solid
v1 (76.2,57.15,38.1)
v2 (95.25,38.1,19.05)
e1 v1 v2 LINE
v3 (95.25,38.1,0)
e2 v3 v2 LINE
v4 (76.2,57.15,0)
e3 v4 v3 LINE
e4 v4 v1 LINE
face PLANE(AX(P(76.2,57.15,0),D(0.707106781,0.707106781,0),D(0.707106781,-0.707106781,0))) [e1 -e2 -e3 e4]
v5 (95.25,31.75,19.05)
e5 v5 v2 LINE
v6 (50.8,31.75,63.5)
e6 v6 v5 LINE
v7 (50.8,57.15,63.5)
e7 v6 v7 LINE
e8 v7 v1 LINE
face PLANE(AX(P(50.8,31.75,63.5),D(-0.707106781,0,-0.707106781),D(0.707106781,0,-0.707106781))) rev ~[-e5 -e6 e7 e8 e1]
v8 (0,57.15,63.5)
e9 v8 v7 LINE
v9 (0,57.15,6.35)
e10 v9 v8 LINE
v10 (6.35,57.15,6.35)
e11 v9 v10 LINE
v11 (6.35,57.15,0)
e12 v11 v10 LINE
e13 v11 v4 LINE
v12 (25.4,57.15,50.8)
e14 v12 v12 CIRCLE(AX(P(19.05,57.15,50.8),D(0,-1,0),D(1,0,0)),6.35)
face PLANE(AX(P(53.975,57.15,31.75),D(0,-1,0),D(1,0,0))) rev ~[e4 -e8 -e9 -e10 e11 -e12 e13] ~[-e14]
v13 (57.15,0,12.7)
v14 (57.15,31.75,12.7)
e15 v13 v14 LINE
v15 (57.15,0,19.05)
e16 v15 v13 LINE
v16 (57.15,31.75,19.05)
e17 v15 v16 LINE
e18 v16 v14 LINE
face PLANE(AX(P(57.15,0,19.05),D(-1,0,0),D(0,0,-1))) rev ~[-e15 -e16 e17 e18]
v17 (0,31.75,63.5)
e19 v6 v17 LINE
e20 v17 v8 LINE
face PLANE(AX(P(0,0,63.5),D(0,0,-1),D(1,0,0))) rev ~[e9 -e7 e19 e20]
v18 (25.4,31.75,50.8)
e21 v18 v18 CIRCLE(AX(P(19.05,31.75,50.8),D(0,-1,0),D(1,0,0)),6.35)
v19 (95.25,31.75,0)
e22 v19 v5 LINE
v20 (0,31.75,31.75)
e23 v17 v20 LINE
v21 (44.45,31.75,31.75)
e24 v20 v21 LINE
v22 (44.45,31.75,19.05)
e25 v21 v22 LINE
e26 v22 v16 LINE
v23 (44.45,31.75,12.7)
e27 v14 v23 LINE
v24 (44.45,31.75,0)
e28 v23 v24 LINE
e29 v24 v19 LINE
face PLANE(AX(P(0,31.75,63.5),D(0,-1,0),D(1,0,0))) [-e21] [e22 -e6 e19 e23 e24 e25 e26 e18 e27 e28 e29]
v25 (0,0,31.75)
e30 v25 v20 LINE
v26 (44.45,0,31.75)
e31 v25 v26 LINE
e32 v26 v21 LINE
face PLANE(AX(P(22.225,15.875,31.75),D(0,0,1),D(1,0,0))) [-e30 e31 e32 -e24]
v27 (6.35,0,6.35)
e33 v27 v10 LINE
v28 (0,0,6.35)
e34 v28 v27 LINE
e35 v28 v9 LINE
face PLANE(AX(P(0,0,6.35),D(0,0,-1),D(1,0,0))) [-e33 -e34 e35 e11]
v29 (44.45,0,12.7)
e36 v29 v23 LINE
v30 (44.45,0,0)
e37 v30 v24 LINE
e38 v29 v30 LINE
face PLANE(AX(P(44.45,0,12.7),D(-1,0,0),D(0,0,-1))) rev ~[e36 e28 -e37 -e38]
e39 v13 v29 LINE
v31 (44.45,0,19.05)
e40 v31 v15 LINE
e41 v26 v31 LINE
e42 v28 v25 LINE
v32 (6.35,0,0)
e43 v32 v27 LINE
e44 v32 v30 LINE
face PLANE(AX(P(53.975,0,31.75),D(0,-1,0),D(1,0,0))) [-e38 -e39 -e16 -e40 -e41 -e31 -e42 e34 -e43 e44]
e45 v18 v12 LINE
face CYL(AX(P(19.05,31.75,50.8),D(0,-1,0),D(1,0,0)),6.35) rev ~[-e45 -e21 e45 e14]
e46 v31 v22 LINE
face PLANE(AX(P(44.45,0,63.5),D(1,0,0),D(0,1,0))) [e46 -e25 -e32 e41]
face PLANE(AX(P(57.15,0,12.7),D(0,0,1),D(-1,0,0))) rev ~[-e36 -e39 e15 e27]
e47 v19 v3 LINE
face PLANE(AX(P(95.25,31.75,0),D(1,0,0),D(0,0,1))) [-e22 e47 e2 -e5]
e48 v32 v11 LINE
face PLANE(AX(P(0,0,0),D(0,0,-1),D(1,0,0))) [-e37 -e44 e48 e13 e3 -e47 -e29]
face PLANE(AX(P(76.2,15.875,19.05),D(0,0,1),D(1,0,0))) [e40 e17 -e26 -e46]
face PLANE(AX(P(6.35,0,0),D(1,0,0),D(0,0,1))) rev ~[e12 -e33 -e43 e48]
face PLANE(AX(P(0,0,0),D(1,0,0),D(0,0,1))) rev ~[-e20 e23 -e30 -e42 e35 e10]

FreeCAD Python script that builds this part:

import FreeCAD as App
import Part
import Sketcher
from FreeCAD import Vector
Q = App.Units.Quantity

doc = App.newDocument("Part")
body = doc.addObject("PartDesign::Body", "Body")

# Sketch on XZ plane
sketch1 = doc.addObject("Sketcher::SketchObject", "Sketch")
body.addObject(sketch1)
sketch1.AttachmentSupport = (doc.XZ_Plane, [""])
sketch1.MapMode = "FlatFace"
sketch1.addGeometry([
    Part.LineSegment(Vector(0, 64, 0), Vector(0, 0, 0)),
    Part.LineSegment(Vector(0, 0, 0), Vector(108, 0, 0)),
    Part.LineSegment(Vector(108, 0, 0), Vector(108, 64, 0)),
    Part.LineSegment(Vector(108, 64, 0), Vector(0, 64, 0)),
], False)
sketch1.addConstraint([
    Sketcher.Constraint("Coincident", 0, 2, 1, 1),
    Sketcher.Constraint("Coincident", 1, 2, 2, 1),
    Sketcher.Constraint("Coincident", 2, 2, 3, 1),
    Sketcher.Constraint("Coincident", 3, 2, 0, 1),
    Sketcher.Constraint("Vertical", 0),
    Sketcher.Constraint("Horizontal", 1),
    Sketcher.Constraint("Vertical", 2),
    Sketcher.Constraint("Horizontal", 3),
    Sketcher.Constraint("Coincident", 0, 2, -1, 1),
    Sketcher.Constraint("DistanceY", 0, 2, 0, 1, Q("2.5 in")),
    Sketcher.Constraint("DistanceX", 1, 1, 1, 2, Q("4.25 in")),
])
pad1 = doc.addObject("PartDesign::Pad", "Pad")
body.addObject(pad1)
pad1.Profile = sketch1
pad1.Length = Q("2.25 in")
pad1.Reversed = True

# Sketch on XY plane
sketch2 = doc.addObject("Sketcher::SketchObject", "Sketch001")
body.addObject(sketch2)
sketch2.AttachmentSupport = (doc.XY_Plane, [""])
sketch2.MapMode = "FlatFace"
sketch2.AttachmentOffset = App.Placement(Vector(0, 0, 2.5 * 25.4), App.Rotation())
sketch2.addGeometry([
    Part.LineSegment(Vector(0, 32, 0), Vector(0, 0, 0)),
    Part.LineSegment(Vector(0, 0, 0), Vector(44, 0, 0)),
    Part.LineSegment(Vector(44, 0, 0), Vector(44, 32, 0)),
    Part.LineSegment(Vector(44, 32, 0), Vector(0, 32, 0)),
], False)
sketch2.addConstraint([
    Sketcher.Constraint("Coincident", 0, 2, 1, 1),
    Sketcher.Constraint("Coincident", 1, 2, 2, 1),
    Sketcher.Constraint("Coincident", 2, 2, 3, 1),
    Sketcher.Constraint("Coincident", 3, 2, 0, 1),
    Sketcher.Constraint("Vertical", 0),
    Sketcher.Constraint("Horizontal", 1),
    Sketcher.Constraint("Vertical", 2),
    Sketcher.Constraint("Horizontal", 3),
    Sketcher.Constraint("Coincident", 0, 2, -1, 1),
    Sketcher.Constraint("DistanceX", 1, 1, 1, 2, Q("1.75 in")),
    Sketcher.Constraint("DistanceY", 0, 2, 0, 1, Q("1.25 in")),
])
pocket1 = doc.addObject("PartDesign::Pocket", "Pocket")
body.addObject(pocket1)
pocket1.Profile = sketch2
pocket1.Length = Q("1.25 in")

# Sketch on XY plane
sketch3 = doc.addObject("Sketcher::SketchObject", "Sketch002")
body.addObject(sketch3)
sketch3.AttachmentSupport = (doc.XY_Plane, [""])
sketch3.MapMode = "FlatFace"
sketch3.AttachmentOffset = App.Placement(Vector(0, 0, 2.5 * 25.4), App.Rotation())
sketch3.addGeometry([
    Part.LineSegment(Vector(44, 32, 0), Vector(44, 0, 0)),
    Part.LineSegment(Vector(44, 0, 0), Vector(108, 0, 0)),
    Part.LineSegment(Vector(108, 0, 0), Vector(108, 32, 0)),
    Part.LineSegment(Vector(108, 32, 0), Vector(44, 32, 0)),
], False)
sketch3.addConstraint([
    Sketcher.Constraint("Coincident", 0, 2, 1, 1),
    Sketcher.Constraint("Coincident", 1, 2, 2, 1),
    Sketcher.Constraint("Coincident", 2, 2, 3, 1),
    Sketcher.Constraint("Coincident", 3, 2, 0, 1),
    Sketcher.Constraint("Vertical", 0),
    Sketcher.Constraint("Horizontal", 1),
    Sketcher.Constraint("Vertical", 2),
    Sketcher.Constraint("Horizontal", 3),
    Sketcher.Constraint("PointOnObject", 0, 2, -1),
    Sketcher.Constraint("DistanceX", 1, 1, 1, 2, Q("2.5 in")),
    Sketcher.Constraint("DistanceY", 0, 2, 0, 1, Q("1.25 in")),
    Sketcher.Constraint("DistanceX", -1, 1, 0, 2, Q("1.75 in")),
])
pocket2 = doc.addObject("PartDesign::Pocket", "Pocket001")
body.addObject(pocket2)
pocket2.Profile = sketch3
pocket2.Length = Q("1.75 in")

# Sketch on XZ plane
sketch4 = doc.addObject("Sketcher::SketchObject", "Sketch003")
body.addObject(sketch4)
sketch4.AttachmentSupport = (doc.XZ_Plane, [""])
sketch4.MapMode = "FlatFace"
sketch4.addGeometry([
    Part.LineSegment(Vector(0, 6, 0), Vector(0, 0, 0)),
    Part.LineSegment(Vector(0, 0, 0), Vector(6, 0, 0)),
    Part.LineSegment(Vector(6, 0, 0), Vector(6, 6, 0)),
    Part.LineSegment(Vector(6, 6, 0), Vector(0, 6, 0)),
], False)
sketch4.addConstraint([
    Sketcher.Constraint("Coincident", 0, 2, 1, 1),
    Sketcher.Constraint("Coincident", 1, 2, 2, 1),
    Sketcher.Constraint("Coincident", 2, 2, 3, 1),
    Sketcher.Constraint("Coincident", 3, 2, 0, 1),
    Sketcher.Constraint("Vertical", 0),
    Sketcher.Constraint("Horizontal", 1),
    Sketcher.Constraint("Vertical", 2),
    Sketcher.Constraint("Horizontal", 3),
    Sketcher.Constraint("Coincident", 0, 2, -1, 1),
    Sketcher.Constraint("Equal", 3, 0),
    Sketcher.Constraint("DistanceX", 1, 1, 1, 2, Q("0.25 in")),
])
pocket3 = doc.addObject("PartDesign::Pocket", "Pocket002")
body.addObject(pocket3)
pocket3.Profile = sketch4
pocket3.Type = "ThroughAll"

# Sketch on XZ plane
sketch5 = doc.addObject("Sketcher::SketchObject", "Sketch004")
body.addObject(sketch5)
sketch5.AttachmentSupport = (doc.XZ_Plane, [""])
sketch5.MapMode = "FlatFace"
sketch5.addGeometry([
    Part.LineSegment(Vector(44, 13, 0), Vector(44, 0, 0)),  # 0
    Part.LineSegment(Vector(44, 0, 0), Vector(108, 0, 0)),  # 1
    Part.LineSegment(Vector(108, 0, 0), Vector(108, 19, 0)),  # 2
    Part.LineSegment(Vector(108, 19, 0), Vector(57, 19, 0)),  # 3
    Part.LineSegment(Vector(57, 19, 0), Vector(57, 13, 0)),  # 4
    Part.LineSegment(Vector(57, 13, 0), Vector(44, 13, 0)),  # 5
], False)
sketch5.addConstraint([
    Sketcher.Constraint("Coincident", 0, 2, 1, 1),
    Sketcher.Constraint("Coincident", 1, 2, 2, 1),
    Sketcher.Constraint("Coincident", 2, 2, 3, 1),
    Sketcher.Constraint("Coincident", 3, 2, 4, 1),
    Sketcher.Constraint("Coincident", 4, 2, 5, 1),
    Sketcher.Constraint("Coincident", 5, 2, 0, 1),
    Sketcher.Constraint("Vertical", 0),
    Sketcher.Constraint("Horizontal", 1),
    Sketcher.Constraint("Vertical", 2),
    Sketcher.Constraint("Horizontal", 3),
    Sketcher.Constraint("Vertical", 4),
    Sketcher.Constraint("Horizontal", 5),
    Sketcher.Constraint("PointOnObject", 0, 2, -1),
    Sketcher.Constraint("Equal", 5, 0),
    Sketcher.Constraint("DistanceX", 3, 2, 3, 1, Q("2 in")),
    Sketcher.Constraint("DistanceX", 1, 1, 1, 2, Q("2.5 in")),
    Sketcher.Constraint("DistanceY", 2, 1, 2, 2, Q("0.75 in")),
    Sketcher.Constraint("DistanceX", -1, 1, 0, 2, Q("1.75 in")),
])
pocket4 = doc.addObject("PartDesign::Pocket", "Pocket003")
body.addObject(pocket4)
pocket4.Profile = sketch5
pocket4.Length = Q("1.25 in")

# Sketch on XZ plane
sketch6 = doc.addObject("Sketcher::SketchObject", "Sketch005")
body.addObject(sketch6)
sketch6.AttachmentSupport = (doc.XZ_Plane, [""])
sketch6.MapMode = "FlatFace"
sketch6.AttachmentOffset = App.Placement(Vector(0, 0, -1.25 * 25.4), App.Rotation())
sketch6.addGeometry([
    Part.LineSegment(Vector(95, 64, 0), Vector(95, 0, 0)),
    Part.LineSegment(Vector(95, 0, 0), Vector(108, 0, 0)),
    Part.LineSegment(Vector(108, 0, 0), Vector(108, 64, 0)),
    Part.LineSegment(Vector(108, 64, 0), Vector(95, 64, 0)),
], False)
sketch6.addConstraint([
    Sketcher.Constraint("Coincident", 0, 2, 1, 1),
    Sketcher.Constraint("Coincident", 1, 2, 2, 1),
    Sketcher.Constraint("Coincident", 2, 2, 3, 1),
    Sketcher.Constraint("Coincident", 3, 2, 0, 1),
    Sketcher.Constraint("Vertical", 0),
    Sketcher.Constraint("Horizontal", 1),
    Sketcher.Constraint("Vertical", 2),
    Sketcher.Constraint("Horizontal", 3),
    Sketcher.Constraint("PointOnObject", 0, 2, -1),
    Sketcher.Constraint("DistanceX", 1, 1, 1, 2, Q("0.5 in")),
    Sketcher.Constraint("DistanceY", 0, 2, 0, 1, Q("2.5 in")),
    Sketcher.Constraint("DistanceX", -1, 1, 0, 2, Q("3.75 in")),
])
pocket5 = doc.addObject("PartDesign::Pocket", "Pocket004")
body.addObject(pocket5)
pocket5.Profile = sketch6
pocket5.Length = Q("1 in")

# Sketch on XZ plane
sketch7 = doc.addObject("Sketcher::SketchObject", "Sketch006")
body.addObject(sketch7)
sketch7.AttachmentSupport = (doc.XZ_Plane, [""])
sketch7.MapMode = "FlatFace"
sketch7.AttachmentOffset = App.Placement(Vector(0, 0, -1.25 * 25.4), App.Rotation())
sketch7.addGeometry([
    Part.LineSegment(Vector(95, 64, 0), Vector(51, 64, 0)),
    Part.LineSegment(Vector(51, 64, 0), Vector(95, 19, 0)),
    Part.LineSegment(Vector(95, 19, 0), Vector(95, 64, 0)),
], False)
sketch7.addConstraint([
    Sketcher.Constraint("Coincident", 0, 2, 1, 1),
    Sketcher.Constraint("Coincident", 1, 2, 2, 1),
    Sketcher.Constraint("Coincident", 2, 2, 0, 1),
    Sketcher.Constraint("Horizontal", 0),
    Sketcher.Constraint("Vertical", 2),
    Sketcher.Constraint("Equal", 0, 2),
    Sketcher.Constraint("DistanceX", -1, 1, 0, 2, Q("2 in")),
    Sketcher.Constraint("DistanceX", 0, 2, 0, 1, Q("1.75 in")),
    Sketcher.Constraint("DistanceY", -1, 1, 0, 2, Q("2.5 in")),
])
pocket6 = doc.addObject("PartDesign::Pocket", "Pocket005")
body.addObject(pocket6)
pocket6.Profile = sketch7
pocket6.Type = "ThroughAll"

# Sketch on XZ plane
sketch8 = doc.addObject("Sketcher::SketchObject", "Sketch007")
body.addObject(sketch8)
sketch8.AttachmentSupport = (doc.XZ_Plane, [""])
sketch8.MapMode = "FlatFace"
sketch8.AttachmentOffset = App.Placement(Vector(0, 0, -1.25 * 25.4), App.Rotation())
sketch8.addGeometry(Part.Circle(Vector(19, 51, 0), Vector(0, 0, 1), 6), False)
sketch8.addConstraint([
    Sketcher.Constraint("Diameter", 0, Q("0.5 in")),
    Sketcher.Constraint("DistanceY", -1, 1, 0, 3, Q("2 in")),
    Sketcher.Constraint("DistanceX", -1, 1, 0, 3, Q("0.75 in")),
])
pocket7 = doc.addObject("PartDesign::Pocket", "Pocket006")
body.addObject(pocket7)
pocket7.Profile = sketch8
pocket7.Type = "ThroughAll"

# Sketch on XY plane
sketch9 = doc.addObject("Sketcher::SketchObject", "Sketch008")
body.addObject(sketch9)
sketch9.AttachmentSupport = (doc.XY_Plane, [""])
sketch9.MapMode = "FlatFace"
sketch9.addGeometry([
    Part.LineSegment(Vector(95, 38, 0), Vector(95, 57, 0)),
    Part.LineSegment(Vector(95, 57, 0), Vector(76, 57, 0)),
    Part.LineSegment(Vector(76, 57, 0), Vector(95, 38, 0)),
], False)
sketch9.addConstraint([
    Sketcher.Constraint("Coincident", 0, 2, 1, 1),
    Sketcher.Constraint("Coincident", 1, 2, 2, 1),
    Sketcher.Constraint("Coincident", 2, 2, 0, 1),
    Sketcher.Constraint("Vertical", 0),
    Sketcher.Constraint("Horizontal", 1),
    Sketcher.Constraint("Equal", 1, 0),
    Sketcher.Constraint("DistanceX", -1, 1, 1, 2, Q("3 in")),
    Sketcher.Constraint("DistanceX", 1, 2, 1, 1, Q("0.75 in")),
    Sketcher.Constraint("DistanceY", -1, 1, 2, 2, Q("1.5 in")),
])
pocket8 = doc.addObject("PartDesign::Pocket", "Pocket007")
body.addObject(pocket8)
pocket8.Profile = sketch9
pocket8.Type = "ThroughAll"
pocket8.Reversed = True

doc.recompute()
